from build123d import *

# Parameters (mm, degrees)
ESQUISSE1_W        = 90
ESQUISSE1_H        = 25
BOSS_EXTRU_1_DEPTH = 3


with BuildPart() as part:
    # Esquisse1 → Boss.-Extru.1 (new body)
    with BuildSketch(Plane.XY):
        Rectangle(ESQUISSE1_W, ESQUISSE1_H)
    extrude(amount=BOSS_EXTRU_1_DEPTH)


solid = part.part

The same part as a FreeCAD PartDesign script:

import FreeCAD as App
import Part
import Sketcher
Q = App.Units.Quantity


def add_polygon(sketch, points):
    """Adds a closed chain of lines whose ends are joined by coincident constraints."""
    first, n = sketch.GeometryCount, len(points)
    for a, b in zip(points, points[1:] + points[:1]):
        sketch.addGeometry(Part.LineSegment(App.Vector(*a, 0), App.Vector(*b, 0)), False)
    for i in range(n):
        sketch.addConstraint(Sketcher.Constraint("Coincident", first + i, 2, first + (i + 1) % n, 1))

doc = App.newDocument("Part")
body = doc.addObject("PartDesign::Body", "Body")

sketch1 = body.newObject("Sketcher::SketchObject", "Sketch")
sketch1.AttachmentSupport = (doc.getObject("XY_Plane"), [""])
sketch1.MapMode = "FlatFace"
add_polygon(sketch1, [(-45, 12.5), (-45, -12.5), (45, -12.5), (45, 12.5)])
sketch1.addConstraint([
    Sketcher.Constraint("Vertical", 0),
    Sketcher.Constraint("Horizontal", 1),
    Sketcher.Constraint("Vertical", 2),
    Sketcher.Constraint("Horizontal", 3),
    Sketcher.Constraint("Symmetric", 0, 2, 2, 2, -1, 1),
    Sketcher.Constraint("DistanceX", 1, 1, 1, 2, Q("90 mm")),
    Sketcher.Constraint("DistanceY", 0, 2, 0, 1, Q("25 mm")),
])
pad1 = body.newObject("PartDesign::Pad", "Pad")
pad1.Profile = sketch1
pad1.Length = 3

doc.recompute()
